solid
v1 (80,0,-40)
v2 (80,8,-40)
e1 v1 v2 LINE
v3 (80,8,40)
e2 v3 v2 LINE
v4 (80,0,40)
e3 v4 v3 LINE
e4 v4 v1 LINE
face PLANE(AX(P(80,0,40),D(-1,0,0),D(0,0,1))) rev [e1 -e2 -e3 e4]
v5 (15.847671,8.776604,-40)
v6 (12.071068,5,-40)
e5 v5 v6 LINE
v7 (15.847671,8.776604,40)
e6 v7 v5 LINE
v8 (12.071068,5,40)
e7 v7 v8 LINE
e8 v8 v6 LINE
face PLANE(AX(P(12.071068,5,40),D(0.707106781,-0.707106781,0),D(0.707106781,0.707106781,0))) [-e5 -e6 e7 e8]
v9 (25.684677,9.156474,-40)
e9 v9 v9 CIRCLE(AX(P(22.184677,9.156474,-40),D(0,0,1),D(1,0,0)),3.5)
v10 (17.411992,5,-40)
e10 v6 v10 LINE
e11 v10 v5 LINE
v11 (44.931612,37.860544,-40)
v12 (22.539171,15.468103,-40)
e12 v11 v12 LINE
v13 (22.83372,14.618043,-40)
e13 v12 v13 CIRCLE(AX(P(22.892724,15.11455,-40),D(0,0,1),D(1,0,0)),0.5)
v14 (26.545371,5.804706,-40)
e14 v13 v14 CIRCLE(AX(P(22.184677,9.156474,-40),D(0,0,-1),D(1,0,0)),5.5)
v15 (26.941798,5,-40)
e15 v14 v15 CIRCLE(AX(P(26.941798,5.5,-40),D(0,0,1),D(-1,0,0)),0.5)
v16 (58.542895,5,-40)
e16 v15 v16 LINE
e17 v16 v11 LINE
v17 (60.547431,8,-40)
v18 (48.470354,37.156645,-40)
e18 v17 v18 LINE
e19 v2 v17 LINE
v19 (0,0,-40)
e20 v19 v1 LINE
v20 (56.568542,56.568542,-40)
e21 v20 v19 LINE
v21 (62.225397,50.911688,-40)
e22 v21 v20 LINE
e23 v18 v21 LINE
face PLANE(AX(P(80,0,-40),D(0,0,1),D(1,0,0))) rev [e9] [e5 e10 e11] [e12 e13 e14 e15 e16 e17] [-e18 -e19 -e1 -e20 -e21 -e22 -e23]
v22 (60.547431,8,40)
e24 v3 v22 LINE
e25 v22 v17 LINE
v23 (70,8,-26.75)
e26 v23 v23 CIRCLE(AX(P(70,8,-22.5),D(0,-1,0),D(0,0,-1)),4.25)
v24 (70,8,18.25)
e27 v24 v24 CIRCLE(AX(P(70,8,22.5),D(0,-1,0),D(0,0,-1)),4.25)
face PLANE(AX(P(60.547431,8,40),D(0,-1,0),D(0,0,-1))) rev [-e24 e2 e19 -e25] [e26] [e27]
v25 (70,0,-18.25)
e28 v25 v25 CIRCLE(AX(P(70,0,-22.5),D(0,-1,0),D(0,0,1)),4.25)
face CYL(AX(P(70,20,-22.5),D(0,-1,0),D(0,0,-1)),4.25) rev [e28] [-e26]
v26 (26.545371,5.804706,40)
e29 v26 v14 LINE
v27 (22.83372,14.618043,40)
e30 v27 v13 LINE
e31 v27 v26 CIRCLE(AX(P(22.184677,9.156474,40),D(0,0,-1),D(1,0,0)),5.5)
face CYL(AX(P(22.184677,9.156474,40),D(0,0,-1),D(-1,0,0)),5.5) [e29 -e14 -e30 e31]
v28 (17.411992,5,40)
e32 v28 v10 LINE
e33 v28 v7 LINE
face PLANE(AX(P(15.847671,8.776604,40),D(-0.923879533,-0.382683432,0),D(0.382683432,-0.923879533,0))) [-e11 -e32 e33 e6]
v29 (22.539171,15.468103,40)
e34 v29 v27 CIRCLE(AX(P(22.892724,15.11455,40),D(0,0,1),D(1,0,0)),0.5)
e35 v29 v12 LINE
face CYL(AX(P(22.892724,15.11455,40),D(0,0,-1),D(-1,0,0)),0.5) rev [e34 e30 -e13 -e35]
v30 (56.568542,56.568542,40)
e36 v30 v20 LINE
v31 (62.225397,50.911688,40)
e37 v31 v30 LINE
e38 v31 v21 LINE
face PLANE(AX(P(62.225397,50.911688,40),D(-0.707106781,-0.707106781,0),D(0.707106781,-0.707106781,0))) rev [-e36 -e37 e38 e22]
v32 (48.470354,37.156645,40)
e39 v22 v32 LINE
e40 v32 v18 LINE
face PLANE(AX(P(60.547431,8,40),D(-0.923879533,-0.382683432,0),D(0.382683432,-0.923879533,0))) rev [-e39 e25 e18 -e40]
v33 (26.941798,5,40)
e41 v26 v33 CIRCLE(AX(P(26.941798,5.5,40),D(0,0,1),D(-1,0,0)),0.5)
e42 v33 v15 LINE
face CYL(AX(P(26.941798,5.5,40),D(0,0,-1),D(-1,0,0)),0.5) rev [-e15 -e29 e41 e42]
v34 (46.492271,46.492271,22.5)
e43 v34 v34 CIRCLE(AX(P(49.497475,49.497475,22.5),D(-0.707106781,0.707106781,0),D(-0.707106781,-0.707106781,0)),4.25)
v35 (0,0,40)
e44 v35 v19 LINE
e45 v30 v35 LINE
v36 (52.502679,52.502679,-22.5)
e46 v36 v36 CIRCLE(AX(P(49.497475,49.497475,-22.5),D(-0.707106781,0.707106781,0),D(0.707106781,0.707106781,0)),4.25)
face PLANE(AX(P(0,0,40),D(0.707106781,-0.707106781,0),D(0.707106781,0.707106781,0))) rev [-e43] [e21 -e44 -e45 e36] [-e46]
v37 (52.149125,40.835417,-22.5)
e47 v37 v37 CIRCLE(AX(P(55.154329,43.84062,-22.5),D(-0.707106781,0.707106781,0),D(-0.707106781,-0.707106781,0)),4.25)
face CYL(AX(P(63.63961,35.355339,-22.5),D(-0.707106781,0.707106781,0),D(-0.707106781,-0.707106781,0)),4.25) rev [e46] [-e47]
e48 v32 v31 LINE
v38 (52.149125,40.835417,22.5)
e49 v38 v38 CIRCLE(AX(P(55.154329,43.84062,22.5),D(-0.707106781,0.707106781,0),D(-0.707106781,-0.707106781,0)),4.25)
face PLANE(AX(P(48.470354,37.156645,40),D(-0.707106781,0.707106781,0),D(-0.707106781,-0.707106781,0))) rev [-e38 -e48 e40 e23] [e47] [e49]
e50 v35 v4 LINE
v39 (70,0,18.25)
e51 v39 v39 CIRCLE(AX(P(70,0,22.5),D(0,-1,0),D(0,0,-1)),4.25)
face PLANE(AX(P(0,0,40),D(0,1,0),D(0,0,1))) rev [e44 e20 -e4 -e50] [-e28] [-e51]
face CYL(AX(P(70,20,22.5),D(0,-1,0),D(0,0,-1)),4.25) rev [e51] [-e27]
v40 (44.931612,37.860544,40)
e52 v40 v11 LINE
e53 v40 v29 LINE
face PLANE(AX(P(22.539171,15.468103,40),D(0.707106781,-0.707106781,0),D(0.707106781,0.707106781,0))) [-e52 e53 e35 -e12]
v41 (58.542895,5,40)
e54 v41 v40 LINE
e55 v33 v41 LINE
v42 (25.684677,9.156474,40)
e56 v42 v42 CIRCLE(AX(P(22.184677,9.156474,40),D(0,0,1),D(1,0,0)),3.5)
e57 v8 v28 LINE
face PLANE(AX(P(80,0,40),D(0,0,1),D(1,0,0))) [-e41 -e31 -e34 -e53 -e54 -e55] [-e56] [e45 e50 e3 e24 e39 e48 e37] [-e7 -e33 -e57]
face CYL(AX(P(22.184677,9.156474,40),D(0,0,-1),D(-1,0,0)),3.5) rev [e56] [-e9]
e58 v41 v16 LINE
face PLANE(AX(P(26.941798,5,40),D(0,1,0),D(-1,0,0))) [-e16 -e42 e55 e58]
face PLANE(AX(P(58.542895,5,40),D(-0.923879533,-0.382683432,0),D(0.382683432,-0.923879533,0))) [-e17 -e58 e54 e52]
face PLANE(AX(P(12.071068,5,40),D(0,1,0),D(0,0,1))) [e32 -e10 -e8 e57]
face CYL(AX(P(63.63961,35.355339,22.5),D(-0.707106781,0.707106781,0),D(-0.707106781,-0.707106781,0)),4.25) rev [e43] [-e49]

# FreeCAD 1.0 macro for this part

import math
import FreeCAD as App
import Part
import Sketcher
Q = App.Units.Quantity

doc = App.newDocument("Part")
body = doc.addObject("PartDesign::Body", "Body")

# Sketch on XY plane
sketch1 = body.newObject("Sketcher::SketchObject", "Sketch")
sketch1.AttachmentSupport = (doc.getObject("XY_Plane"), [""])
sketch1.MapMode = "FlatFace"
sketch1.addGeometry(Part.LineSegment(App.Vector(56.6, 56.6, 0), App.Vector(0, 0, 0)), False)
sketch1.addGeometry(Part.LineSegment(App.Vector(0, 0, 0), App.Vector(80, 0, 0)), False)
sketch1.addGeometry(Part.LineSegment(App.Vector(80, 0, 0), App.Vector(80, 8, 0)), False)
sketch1.addGeometry(Part.LineSegment(App.Vector(80, 8, 0), App.Vector(60.5, 8, 0)), False)
sketch1.addGeometry(Part.LineSegment(App.Vector(60.5, 8, 0), App.Vector(48.5, 37.2, 0)), False)
sketch1.addGeometry(Part.LineSegment(App.Vector(48.5, 37.2, 0), App.Vector(62.2, 50.9, 0)), False)
sketch1.addGeometry(Part.LineSegment(App.Vector(62.2, 50.9, 0), App.Vector(56.6, 56.6, 0)), False)
sketch1.addGeometry(Part.LineSegment(App.Vector(12.1, 5, 0), App.Vector(15.8, 8.8, 0)), False)
sketch1.addGeometry(Part.LineSegment(App.Vector(15.8, 8.8, 0), App.Vector(17.4, 5, 0)), False)
sketch1.addGeometry(Part.LineSegment(App.Vector(17.4, 5, 0), App.Vector(12.1, 5, 0)), False)
sketch1.addGeometry(Part.Circle(App.Vector(22.2, 9.2, 0), App.Vector(0, 0, 1), 3.5), False)
sketch1.addGeometry(Part.LineSegment(App.Vector(22.5, 15.5, 0), App.Vector(44.9, 37.9, 0)), False)
sketch1.addGeometry(Part.LineSegment(App.Vector(44.9, 37.9, 0), App.Vector(58.5, 5, 0)), False)
sketch1.addGeometry(Part.LineSegment(App.Vector(58.5, 5, 0), App.Vector(26.9, 5, 0)), False)
sketch1.addGeometry(Part.ArcOfCircle(Part.Circle(App.Vector(26.9, 5.5, 0), App.Vector(0, 0, 1), 0.5), math.radians(142), math.radians(270)), False)
sketch1.addGeometry(Part.ArcOfCircle(Part.Circle(App.Vector(22.2, 9.2, 0), App.Vector(0, 0, 1), 5.5), math.radians(-38), math.radians(83)), False)
sketch1.addGeometry(Part.ArcOfCircle(Part.Circle(App.Vector(22.9, 15.1, 0), App.Vector(0, 0, 1), 0.5), math.radians(135), math.radians(263)), False)
sketch1.addConstraint(Sketcher.Constraint("Coincident", 0, 2, 1, 1))
sketch1.addConstraint(Sketcher.Constraint("Coincident", 1, 2, 2, 1))
sketch1.addConstraint(Sketcher.Constraint("Coincident", 2, 2, 3, 1))
sketch1.addConstraint(Sketcher.Constraint("Coincident", 3, 2, 4, 1))
sketch1.addConstraint(Sketcher.Constraint("Coincident", 4, 2, 5, 1))
sketch1.addConstraint(Sketcher.Constraint("Coincident", 5, 2, 6, 1))
sketch1.addConstraint(Sketcher.Constraint("Coincident", 6, 2, 0, 1))
sketch1.addConstraint(Sketcher.Constraint("Coincident", 7, 2, 8, 1))
sketch1.addConstraint(Sketcher.Constraint("Coincident", 8, 2, 9, 1))
sketch1.addConstraint(Sketcher.Constraint("Coincident", 9, 2, 7, 1))
sketch1.addConstraint(Sketcher.Constraint("Coincident", 11, 2, 12, 1))
sketch1.addConstraint(Sketcher.Constraint("Coincident", 12, 2, 13, 1))
sketch1.addConstraint(Sketcher.Constraint("Tangent", 13, 2, 14, 2))
sketch1.addConstraint(Sketcher.Constraint("Tangent", 14, 1, 15, 1))
sketch1.addConstraint(Sketcher.Constraint("Tangent", 15, 2, 16, 2))
sketch1.addConstraint(Sketcher.Constraint("Tangent", 16, 1, 11, 1))
sketch1.addConstraint(Sketcher.Constraint("Horizontal", 1))
sketch1.addConstraint(Sketcher.Constraint("Vertical", 2))
sketch1.addConstraint(Sketcher.Constraint("Horizontal", 3))
sketch1.addConstraint(Sketcher.Constraint("Horizontal", 9))
sketch1.addConstraint(Sketcher.Constraint("Horizontal", 13))
sketch1.addConstraint(Sketcher.Constraint("Coincident", 0, 2, -1, 1))
sketch1.addConstraint(Sketcher.Constraint("Coincident", 15, 3, 10, 3))
sketch1.addConstraint(Sketcher.Constraint("Equal", 14, 16))
sketch1.addConstraint(Sketcher.Constraint("Parallel", 0, 5))
sketch1.addConstraint(Sketcher.Constraint("Perpendicular", 5, 6))
sketch1.addConstraint(Sketcher.Constraint("Perpendicular", 6, 7))
sketch1.addConstraint(Sketcher.Constraint("Parallel", 4, 8))
sketch1.addConstraint(Sketcher.Constraint("Parallel", 7, 11))
sketch1.addConstraint(Sketcher.Constraint("Parallel", 8, 12))
sketch1.addConstraint(Sketcher.Constraint("Horizontal", 9, 2, 12, 2))
sketch1.addConstraint(Sketcher.Constraint("Diameter", 10, 7.0))
sketch1.addConstraint(Sketcher.Constraint("Radius", 14, 0.5))
sketch1.addConstraint(Sketcher.Constraint("Radius", 15, 5.5))
sketch1.addConstraint(Sketcher.Constraint("DistanceX", 1, 1, 1, 2, 80.0))
sketch1.addConstraint(Sketcher.Constraint("DistanceY", 2, 1, 2, 2, 8.0))
sketch1.addConstraint(Sketcher.Constraint("Angle", 0, Q("-135 deg")))
sketch1.addConstraint(Sketcher.Constraint("Distance", 0, 80.0))
sketch1.addConstraint(Sketcher.Constraint("Distance", 6, 8.0))
sketch1.addConstraint(Sketcher.Constraint("DistanceY", -1, 1, 8, 2, 5.0))
sketch1.addConstraint(Sketcher.Constraint("Angle", 4, Q("112.5 deg")))
sketch1.addConstraint(Sketcher.Constraint("DistanceY", 11, 2, 6, 2, 18.707998))
sketch1.addConstraint(Sketcher.Constraint("DistanceX", 3, 2, 3, 1, 19.452569))
sketch1.addConstraint(Sketcher.Constraint("DistanceX", -1, 1, 14, 3, 26.941798))
sketch1.addConstraint(Sketcher.Constraint("DistanceX", 7, 2, 16, 1, 6.6915))
sketch1.addConstraint(Sketcher.Constraint("DistanceY", 7, 2, 16, 1, 6.6915))
sketch1.addConstraint(Sketcher.Constraint("DistanceX", 9, 2, 9, 1, 5.340924))
sketch1.addConstraint(Sketcher.Constraint("DistanceX", 13, 2, 13, 1, 31.601097))
pad1 = body.newObject("PartDesign::Pad", "Pad")
pad1.Profile = sketch1
pad1.Length = 80
pad1.Midplane = True

# Sketch on an angled plane
sketch2 = body.newObject("Sketcher::SketchObject", "Sketch001")
sketch2.Placement = App.Placement(App.Vector(0, 0, 0), App.Rotation(App.Vector(0, 0, 1), App.Vector(0.707106781, 0.707106781, 0), App.Vector(-0.707106781, 0.707106781, 0), "ZXY"))
sketch2.addGeometry(Part.Circle(App.Vector(22.5, 70, 0), App.Vector(0, 0, 1), 4.2), False)
sketch2.addGeometry(Part.Circle(App.Vector(-22.5, 70, 0), App.Vector(0, 0, 1), 4.2), False)
sketch2.addConstraint(Sketcher.Constraint("Equal", 0, 1))
sketch2.addConstraint(Sketcher.Constraint("Symmetric", 0, 3, 1, 3, -2))
sketch2.addConstraint(Sketcher.Constraint("Diameter", 0, 8.5))
sketch2.addConstraint(Sketcher.Constraint("DistanceY", -1, 1, 0, 3, 70.0))
sketch2.addConstraint(Sketcher.Constraint("DistanceX", 1, 3, 0, 3, 45.0))
pocket1 = body.newObject("PartDesign::Pocket", "Pocket")
pocket1.Profile = sketch2
pocket1.Length = 20

# Sketch on XZ plane
sketch3 = body.newObject("Sketcher::SketchObject", "Sketch002")
sketch3.AttachmentSupport = (doc.getObject("XZ_Plane"), [""])
sketch3.MapMode = "FlatFace"
sketch3.addGeometry(Part.Circle(App.Vector(70, 22.5, 0), App.Vector(0, 0, 1), 4.2), False)
sketch3.addGeometry(Part.Circle(App.Vector(70, -22.5, 0), App.Vector(0, 0, 1), 4.2), False)
sketch3.addConstraint(Sketcher.Constraint("Equal", 0, 1))
sketch3.addConstraint(Sketcher.Constraint("Symmetric", 0, 3, 1, 3, -1))
sketch3.addConstraint(Sketcher.Constraint("Diameter", 0, 8.5))
sketch3.addConstraint(Sketcher.Constraint("DistanceX", -1, 1, 0, 3, 70.0))
sketch3.addConstraint(Sketcher.Constraint("DistanceY", 1, 3, 0, 3, 45.0))
pocket2 = body.newObject("PartDesign::Pocket", "Pocket001")
pocket2.Profile = sketch3
pocket2.Length = 20

doc.recompute()
